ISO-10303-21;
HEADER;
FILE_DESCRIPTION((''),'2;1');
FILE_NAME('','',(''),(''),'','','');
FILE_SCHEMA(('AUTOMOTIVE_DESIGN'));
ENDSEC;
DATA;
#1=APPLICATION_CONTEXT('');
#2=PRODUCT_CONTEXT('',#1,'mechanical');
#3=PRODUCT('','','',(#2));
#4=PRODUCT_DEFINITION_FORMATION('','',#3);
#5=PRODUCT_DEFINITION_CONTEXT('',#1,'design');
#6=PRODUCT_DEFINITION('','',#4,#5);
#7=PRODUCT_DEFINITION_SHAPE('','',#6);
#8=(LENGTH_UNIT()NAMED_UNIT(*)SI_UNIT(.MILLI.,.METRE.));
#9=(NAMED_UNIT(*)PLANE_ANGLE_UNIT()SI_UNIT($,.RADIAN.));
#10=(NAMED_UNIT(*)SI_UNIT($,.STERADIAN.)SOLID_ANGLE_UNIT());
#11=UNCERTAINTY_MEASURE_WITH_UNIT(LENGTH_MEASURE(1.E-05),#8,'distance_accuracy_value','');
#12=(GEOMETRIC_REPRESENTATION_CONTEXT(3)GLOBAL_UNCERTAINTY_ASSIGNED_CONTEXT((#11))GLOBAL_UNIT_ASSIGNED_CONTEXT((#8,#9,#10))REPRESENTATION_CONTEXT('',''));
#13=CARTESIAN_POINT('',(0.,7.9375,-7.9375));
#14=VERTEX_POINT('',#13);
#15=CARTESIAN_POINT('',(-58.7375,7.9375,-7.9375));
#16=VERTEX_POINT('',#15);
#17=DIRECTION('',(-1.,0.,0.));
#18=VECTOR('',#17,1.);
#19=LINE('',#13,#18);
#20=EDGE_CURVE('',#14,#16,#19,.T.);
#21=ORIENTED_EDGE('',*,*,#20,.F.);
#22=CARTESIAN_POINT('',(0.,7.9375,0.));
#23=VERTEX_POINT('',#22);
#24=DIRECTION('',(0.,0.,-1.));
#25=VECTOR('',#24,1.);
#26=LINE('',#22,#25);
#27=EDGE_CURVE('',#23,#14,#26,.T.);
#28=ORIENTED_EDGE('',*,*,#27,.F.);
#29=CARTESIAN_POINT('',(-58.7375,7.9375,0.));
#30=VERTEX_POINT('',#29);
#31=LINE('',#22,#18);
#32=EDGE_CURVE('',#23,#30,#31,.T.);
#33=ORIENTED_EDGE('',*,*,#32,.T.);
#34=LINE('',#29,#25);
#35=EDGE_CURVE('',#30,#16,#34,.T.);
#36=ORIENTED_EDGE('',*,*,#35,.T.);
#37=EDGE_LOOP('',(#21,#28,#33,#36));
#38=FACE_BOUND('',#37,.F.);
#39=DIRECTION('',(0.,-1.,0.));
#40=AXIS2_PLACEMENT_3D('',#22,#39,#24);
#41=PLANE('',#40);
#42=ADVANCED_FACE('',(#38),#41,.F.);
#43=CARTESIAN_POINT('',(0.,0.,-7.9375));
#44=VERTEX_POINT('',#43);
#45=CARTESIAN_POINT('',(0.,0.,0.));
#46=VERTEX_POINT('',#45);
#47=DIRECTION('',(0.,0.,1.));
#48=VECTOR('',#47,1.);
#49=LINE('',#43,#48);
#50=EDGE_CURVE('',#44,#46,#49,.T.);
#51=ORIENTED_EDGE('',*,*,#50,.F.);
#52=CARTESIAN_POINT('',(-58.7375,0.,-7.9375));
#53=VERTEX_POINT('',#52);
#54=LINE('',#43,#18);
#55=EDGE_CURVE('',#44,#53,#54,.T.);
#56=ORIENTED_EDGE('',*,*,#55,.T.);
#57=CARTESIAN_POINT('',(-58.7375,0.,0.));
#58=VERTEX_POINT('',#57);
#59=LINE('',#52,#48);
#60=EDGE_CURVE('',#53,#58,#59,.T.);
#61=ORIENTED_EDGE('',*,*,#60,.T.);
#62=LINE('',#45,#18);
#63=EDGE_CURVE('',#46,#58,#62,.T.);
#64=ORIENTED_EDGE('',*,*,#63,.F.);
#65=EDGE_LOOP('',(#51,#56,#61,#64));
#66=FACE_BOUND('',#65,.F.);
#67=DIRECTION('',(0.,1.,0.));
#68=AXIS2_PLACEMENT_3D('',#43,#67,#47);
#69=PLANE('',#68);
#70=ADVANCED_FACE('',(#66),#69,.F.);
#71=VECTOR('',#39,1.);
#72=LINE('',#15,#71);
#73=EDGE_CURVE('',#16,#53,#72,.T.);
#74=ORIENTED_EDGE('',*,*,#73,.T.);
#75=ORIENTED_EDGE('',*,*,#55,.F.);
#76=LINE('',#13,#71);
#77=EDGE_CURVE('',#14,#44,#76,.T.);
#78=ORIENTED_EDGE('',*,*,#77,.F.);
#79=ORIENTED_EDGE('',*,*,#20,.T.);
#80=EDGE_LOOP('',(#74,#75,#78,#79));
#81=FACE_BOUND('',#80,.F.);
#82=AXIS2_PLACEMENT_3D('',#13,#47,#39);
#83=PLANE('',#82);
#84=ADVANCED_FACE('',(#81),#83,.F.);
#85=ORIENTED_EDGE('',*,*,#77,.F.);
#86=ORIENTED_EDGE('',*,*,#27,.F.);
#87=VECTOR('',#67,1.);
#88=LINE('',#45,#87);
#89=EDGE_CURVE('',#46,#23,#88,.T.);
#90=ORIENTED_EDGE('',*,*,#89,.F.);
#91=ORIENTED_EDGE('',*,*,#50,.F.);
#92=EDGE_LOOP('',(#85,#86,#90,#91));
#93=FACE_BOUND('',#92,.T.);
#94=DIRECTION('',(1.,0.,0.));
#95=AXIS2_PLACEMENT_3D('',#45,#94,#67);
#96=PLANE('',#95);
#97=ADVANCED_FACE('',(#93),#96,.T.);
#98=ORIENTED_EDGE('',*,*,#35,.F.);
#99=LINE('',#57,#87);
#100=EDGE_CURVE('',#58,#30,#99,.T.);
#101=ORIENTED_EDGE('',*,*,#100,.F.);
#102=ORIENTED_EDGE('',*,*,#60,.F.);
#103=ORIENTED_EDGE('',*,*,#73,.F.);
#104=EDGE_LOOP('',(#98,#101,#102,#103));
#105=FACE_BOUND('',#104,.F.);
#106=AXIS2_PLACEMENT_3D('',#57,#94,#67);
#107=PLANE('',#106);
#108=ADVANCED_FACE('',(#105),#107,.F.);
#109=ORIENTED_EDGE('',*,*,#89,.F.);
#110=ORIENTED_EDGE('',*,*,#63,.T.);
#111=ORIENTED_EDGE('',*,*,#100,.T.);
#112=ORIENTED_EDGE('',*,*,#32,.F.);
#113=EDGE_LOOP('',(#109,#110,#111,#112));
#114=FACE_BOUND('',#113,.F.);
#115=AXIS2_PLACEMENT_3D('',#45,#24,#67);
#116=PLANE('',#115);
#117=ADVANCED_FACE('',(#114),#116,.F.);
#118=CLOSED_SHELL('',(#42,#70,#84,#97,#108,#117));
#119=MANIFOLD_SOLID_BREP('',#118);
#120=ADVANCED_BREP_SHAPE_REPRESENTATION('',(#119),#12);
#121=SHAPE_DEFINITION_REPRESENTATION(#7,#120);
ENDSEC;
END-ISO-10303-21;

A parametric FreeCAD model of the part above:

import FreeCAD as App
import Part
import Sketcher
from FreeCAD import Vector
Q = App.Units.Quantity

doc = App.newDocument("Part")
params = doc.addObject("Spreadsheet::Sheet", "Params")
for row, (alias, value) in enumerate([
    ("sketch1_width", "0.3125 in"),
    ("pad1_length", "2.3125 in"),
], start=1):
    params.set(f"A{row}", alias)
    params.set(f"B{row}", "=" + value)
    params.setAlias(f"B{row}", alias)

body = doc.addObject("PartDesign::Body", "Body")

# Sketch on YZ plane
sketch1 = body.newObject("Sketcher::SketchObject", "Sketch")
sketch1.AttachmentSupport = (doc.getObject("YZ_Plane"), [""])
sketch1.MapMode = "FlatFace"
sketch1.addGeometry([
    Part.LineSegment(Vector(8, 0, 0), Vector(0, 0, 0)),
    Part.LineSegment(Vector(0, 0, 0), Vector(0, -8, 0)),
    Part.LineSegment(Vector(0, -8, 0), Vector(8, -8, 0)),
    Part.LineSegment(Vector(8, -8, 0), Vector(8, 0, 0)),
], False)
sketch1.addConstraint([
    Sketcher.Constraint("Coincident", 0, 2, 1, 1),
    Sketcher.Constraint("Coincident", 1, 2, 2, 1),
    Sketcher.Constraint("Coincident", 2, 2, 3, 1),
    Sketcher.Constraint("Coincident", 3, 2, 0, 1),
    Sketcher.Constraint("Horizontal", 0),
    Sketcher.Constraint("Vertical", 1),
    Sketcher.Constraint("Horizontal", 2),
    Sketcher.Constraint("Vertical", 3),
    Sketcher.Constraint("Coincident", 0, 2, -1, 1),
    Sketcher.Constraint("Equal", 2, 1),
    Sketcher.Constraint("DistanceX", 0, 2, 0, 1, Q("0.3125 in")),
])
sketch1.setExpression("Constraints[10]", "Params.sketch1_width")
pad1 = body.newObject("PartDesign::Pad", "Pad")
pad1.Profile = sketch1
pad1.setExpression("Length", "Params.pad1_length")
pad1.Reversed = True

doc.recompute()
